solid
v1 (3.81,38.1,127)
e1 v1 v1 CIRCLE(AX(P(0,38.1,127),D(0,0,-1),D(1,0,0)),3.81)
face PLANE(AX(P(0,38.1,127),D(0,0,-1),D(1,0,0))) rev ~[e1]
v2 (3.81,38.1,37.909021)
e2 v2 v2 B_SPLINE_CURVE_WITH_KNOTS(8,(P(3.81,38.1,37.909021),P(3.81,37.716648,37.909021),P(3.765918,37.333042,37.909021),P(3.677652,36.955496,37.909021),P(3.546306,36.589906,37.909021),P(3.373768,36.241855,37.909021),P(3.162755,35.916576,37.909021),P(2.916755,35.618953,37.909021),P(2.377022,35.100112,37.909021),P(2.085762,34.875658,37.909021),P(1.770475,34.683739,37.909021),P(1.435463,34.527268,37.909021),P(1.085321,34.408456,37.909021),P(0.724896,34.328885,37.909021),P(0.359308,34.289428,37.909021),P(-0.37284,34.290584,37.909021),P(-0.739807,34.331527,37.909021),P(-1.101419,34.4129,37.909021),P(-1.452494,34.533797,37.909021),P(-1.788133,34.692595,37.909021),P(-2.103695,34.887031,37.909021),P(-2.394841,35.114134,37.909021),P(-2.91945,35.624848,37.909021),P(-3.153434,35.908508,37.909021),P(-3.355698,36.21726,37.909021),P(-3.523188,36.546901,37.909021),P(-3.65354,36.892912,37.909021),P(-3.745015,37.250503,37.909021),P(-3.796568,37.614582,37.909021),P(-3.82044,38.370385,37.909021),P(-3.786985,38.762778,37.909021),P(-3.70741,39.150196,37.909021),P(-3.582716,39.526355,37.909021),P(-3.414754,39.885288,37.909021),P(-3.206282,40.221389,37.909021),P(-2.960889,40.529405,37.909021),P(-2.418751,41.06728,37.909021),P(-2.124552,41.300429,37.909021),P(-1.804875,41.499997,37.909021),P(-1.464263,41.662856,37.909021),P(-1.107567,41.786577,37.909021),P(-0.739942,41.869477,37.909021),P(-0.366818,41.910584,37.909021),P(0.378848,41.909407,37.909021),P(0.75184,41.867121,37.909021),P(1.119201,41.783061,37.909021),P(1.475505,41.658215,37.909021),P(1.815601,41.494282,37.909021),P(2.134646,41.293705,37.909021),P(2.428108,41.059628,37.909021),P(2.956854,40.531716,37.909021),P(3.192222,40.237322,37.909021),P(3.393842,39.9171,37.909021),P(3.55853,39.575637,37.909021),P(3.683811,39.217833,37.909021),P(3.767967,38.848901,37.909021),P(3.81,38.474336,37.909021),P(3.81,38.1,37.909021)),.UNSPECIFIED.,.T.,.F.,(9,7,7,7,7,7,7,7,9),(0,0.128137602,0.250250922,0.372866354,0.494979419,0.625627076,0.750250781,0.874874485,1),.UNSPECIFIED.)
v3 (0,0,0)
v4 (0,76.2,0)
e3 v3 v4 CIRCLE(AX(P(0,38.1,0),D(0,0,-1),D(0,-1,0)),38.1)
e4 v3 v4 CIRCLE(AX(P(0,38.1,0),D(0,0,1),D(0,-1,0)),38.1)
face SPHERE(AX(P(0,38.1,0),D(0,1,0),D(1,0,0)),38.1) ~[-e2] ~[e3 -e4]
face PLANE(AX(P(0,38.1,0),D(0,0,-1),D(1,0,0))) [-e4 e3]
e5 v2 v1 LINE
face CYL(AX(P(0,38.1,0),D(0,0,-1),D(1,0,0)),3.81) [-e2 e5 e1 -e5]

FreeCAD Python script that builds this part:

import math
import FreeCAD as App
import Part
import Sketcher
from FreeCAD import Vector
Q = App.Units.Quantity

doc = App.newDocument("Part")
body = doc.addObject("PartDesign::Body", "Body")

sketch1 = body.newObject("Sketcher::SketchObject", "Sketch")
sketch1.AttachmentSupport = (doc.getObject("XY_Plane"), [""])
sketch1.MapMode = "FlatFace"
sketch1.addGeometry(Part.LineSegment(Vector(0, 76, 0), Vector(0, 0, 0)), False)
sketch1.addGeometry(Part.ArcOfCircle(Part.Circle(Vector(0, 38, 0), Vector(0, 0, 1), 38), math.radians(-90), math.radians(90)), False)
sketch1.addConstraint(Sketcher.Constraint("Coincident", 0, 1, 1, 2))
sketch1.addConstraint(Sketcher.Constraint("Coincident", 1, 1, 0, 2))
sketch1.addConstraint(Sketcher.Constraint("Vertical", 0))
sketch1.addConstraint(Sketcher.Constraint("Coincident", 1, 1, -1, 1))
sketch1.addConstraint(Sketcher.Constraint("PointOnObject", 1, 3, -2))
sketch1.addConstraint(Sketcher.Constraint("Radius", 1, Q("1.5 in")))
revolution = body.newObject("PartDesign::Revolution", "Revolution")
revolution.Profile = sketch1
revolution.ReferenceAxis = (sketch1, ["V_Axis"])
revolution.Angle = 180
revolution.Reversed = True

sketch2 = body.newObject("Sketcher::SketchObject", "Sketch001")
sketch2.AttachmentSupport = (doc.getObject("XY_Plane"), [""])
sketch2.MapMode = "FlatFace"
sketch2.addGeometry(Part.Circle(Vector(0, 38.1, 0), Vector(0, 0, 1), 3.8), False)
sketch2.addConstraint(Sketcher.Constraint("PointOnObject", 0, 3, -2))
sketch2.addConstraint(Sketcher.Constraint("Diameter", 0, Q("0.3 in")))
sketch2.addConstraint(Sketcher.Constraint("DistanceY", -1, 1, 0, 3, Q("1.5 in")))
pad1 = body.newObject("PartDesign::Pad", "Pad")
pad1.Profile = sketch2
pad1.Length = Q("5 in")

doc.recompute()
